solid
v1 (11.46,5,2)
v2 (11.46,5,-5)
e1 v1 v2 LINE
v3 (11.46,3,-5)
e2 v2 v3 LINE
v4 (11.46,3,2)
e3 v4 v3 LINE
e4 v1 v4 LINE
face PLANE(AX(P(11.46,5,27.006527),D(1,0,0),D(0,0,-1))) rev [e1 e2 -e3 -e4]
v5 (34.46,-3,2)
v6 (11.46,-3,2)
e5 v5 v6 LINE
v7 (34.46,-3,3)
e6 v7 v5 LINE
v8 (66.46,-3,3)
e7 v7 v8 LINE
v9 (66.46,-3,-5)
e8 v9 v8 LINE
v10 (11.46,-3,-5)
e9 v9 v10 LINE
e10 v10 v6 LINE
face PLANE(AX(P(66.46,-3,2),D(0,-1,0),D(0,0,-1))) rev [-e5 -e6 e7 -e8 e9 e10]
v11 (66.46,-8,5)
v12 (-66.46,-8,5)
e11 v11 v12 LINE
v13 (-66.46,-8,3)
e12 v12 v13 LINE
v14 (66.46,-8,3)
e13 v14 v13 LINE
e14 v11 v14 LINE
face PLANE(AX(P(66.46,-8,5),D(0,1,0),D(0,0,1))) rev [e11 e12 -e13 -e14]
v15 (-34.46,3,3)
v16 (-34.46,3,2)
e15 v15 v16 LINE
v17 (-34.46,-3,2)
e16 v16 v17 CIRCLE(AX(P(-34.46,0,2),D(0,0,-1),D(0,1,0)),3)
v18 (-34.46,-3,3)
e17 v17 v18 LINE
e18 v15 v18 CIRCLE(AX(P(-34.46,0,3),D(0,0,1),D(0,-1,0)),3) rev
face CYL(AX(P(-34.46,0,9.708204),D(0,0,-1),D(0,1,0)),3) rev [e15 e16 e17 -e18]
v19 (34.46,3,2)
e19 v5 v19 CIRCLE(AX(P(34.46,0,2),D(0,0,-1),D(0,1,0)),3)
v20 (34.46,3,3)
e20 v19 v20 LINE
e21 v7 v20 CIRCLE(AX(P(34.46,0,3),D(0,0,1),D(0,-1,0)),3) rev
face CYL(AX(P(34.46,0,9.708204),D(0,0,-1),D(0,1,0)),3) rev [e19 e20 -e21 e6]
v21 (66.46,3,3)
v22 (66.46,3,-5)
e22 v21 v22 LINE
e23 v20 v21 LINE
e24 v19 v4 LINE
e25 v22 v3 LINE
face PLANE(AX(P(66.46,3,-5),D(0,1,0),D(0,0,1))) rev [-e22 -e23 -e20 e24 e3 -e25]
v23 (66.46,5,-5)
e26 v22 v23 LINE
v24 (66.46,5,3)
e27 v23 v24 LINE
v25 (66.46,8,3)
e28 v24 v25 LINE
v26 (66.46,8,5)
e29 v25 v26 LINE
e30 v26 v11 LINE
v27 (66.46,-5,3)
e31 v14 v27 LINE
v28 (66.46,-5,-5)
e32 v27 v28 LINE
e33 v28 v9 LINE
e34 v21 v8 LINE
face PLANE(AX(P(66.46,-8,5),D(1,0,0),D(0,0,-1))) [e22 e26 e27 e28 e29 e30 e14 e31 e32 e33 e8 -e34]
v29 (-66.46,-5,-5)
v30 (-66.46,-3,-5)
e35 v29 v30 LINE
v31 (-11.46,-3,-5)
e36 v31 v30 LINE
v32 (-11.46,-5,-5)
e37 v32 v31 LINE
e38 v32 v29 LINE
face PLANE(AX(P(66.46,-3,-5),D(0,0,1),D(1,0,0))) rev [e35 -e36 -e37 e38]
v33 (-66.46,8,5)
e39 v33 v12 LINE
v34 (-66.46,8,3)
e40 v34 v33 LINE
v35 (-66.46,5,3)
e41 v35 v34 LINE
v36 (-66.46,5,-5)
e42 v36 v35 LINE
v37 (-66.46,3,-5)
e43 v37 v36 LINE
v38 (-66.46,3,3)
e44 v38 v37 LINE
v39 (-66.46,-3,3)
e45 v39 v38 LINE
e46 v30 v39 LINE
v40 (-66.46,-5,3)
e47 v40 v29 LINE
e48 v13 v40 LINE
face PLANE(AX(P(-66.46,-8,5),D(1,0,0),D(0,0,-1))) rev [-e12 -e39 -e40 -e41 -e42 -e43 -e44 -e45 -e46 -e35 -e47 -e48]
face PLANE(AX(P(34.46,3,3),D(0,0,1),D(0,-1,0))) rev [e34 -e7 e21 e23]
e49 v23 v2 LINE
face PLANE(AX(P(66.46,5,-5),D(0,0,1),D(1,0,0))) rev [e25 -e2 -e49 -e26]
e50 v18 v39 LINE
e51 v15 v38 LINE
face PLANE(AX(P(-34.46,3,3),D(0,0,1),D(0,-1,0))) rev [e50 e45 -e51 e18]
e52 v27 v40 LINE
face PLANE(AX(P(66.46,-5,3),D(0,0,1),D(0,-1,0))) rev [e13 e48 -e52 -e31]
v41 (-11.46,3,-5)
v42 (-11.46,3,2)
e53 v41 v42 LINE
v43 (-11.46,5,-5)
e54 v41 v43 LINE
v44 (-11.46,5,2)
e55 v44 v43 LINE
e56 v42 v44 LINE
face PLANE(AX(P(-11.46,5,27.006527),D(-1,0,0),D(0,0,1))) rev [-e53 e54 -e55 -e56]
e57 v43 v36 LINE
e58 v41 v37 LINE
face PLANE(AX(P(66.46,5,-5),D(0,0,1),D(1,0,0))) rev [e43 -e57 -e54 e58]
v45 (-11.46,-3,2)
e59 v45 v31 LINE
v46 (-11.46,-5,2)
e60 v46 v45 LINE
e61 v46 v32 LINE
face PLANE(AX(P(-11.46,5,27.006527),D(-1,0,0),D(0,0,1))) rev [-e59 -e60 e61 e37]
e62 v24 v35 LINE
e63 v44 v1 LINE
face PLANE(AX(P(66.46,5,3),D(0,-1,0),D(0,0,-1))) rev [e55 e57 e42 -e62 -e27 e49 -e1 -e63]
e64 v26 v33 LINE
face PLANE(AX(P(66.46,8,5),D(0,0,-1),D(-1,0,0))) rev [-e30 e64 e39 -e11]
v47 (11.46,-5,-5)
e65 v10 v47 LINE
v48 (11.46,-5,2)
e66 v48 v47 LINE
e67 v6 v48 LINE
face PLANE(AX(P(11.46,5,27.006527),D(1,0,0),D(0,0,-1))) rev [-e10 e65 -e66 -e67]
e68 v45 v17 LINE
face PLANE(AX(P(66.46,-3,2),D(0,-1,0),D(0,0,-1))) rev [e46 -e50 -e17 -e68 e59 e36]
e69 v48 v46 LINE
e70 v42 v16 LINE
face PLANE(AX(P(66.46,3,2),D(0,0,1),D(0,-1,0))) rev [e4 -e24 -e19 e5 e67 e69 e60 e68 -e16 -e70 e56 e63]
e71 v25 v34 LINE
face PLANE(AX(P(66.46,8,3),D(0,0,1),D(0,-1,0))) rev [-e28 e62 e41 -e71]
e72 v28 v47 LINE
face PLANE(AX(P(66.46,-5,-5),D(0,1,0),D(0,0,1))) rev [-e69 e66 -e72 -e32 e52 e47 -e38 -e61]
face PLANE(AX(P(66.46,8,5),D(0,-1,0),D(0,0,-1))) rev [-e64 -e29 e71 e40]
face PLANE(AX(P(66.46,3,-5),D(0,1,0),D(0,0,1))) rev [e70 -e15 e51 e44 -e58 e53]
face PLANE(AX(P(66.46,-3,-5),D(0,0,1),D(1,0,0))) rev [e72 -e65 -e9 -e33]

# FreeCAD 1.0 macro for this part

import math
import FreeCAD as App
import Part
import Sketcher
from FreeCAD import Vector
Q = App.Units.Quantity

doc = App.newDocument("Part")
body = doc.addObject("PartDesign::Body", "Body")

sketch1 = body.newObject("Sketcher::SketchObject", "Sketch")
sketch1.AttachmentSupport = (doc.getObject("YZ_Plane"), [""])
sketch1.MapMode = "FlatFace"
sketch1.addGeometry([
    Part.LineSegment(Vector(5, 3, 0), Vector(8, 3, 0)),
    Part.LineSegment(Vector(8, 3, 0), Vector(8, 5, 0)),
    Part.LineSegment(Vector(8, 5, 0), Vector(-8, 5, 0)),
    Part.LineSegment(Vector(-8, 5, 0), Vector(-8, 3, 0)),
    Part.LineSegment(Vector(-8, 3, 0), Vector(-5, 3, 0)),
    Part.LineSegment(Vector(-5, 3, 0), Vector(-5, -5, 0)),
    Part.LineSegment(Vector(-5, -5, 0), Vector(-3, -5, 0)),
    Part.LineSegment(Vector(-3, -5, 0), Vector(-3, 2, 0)),
    Part.LineSegment(Vector(-3, 2, 0), Vector(3, 2, 0)),
    Part.LineSegment(Vector(3, 2, 0), Vector(3, -5, 0)),
    Part.LineSegment(Vector(3, -5, 0), Vector(5, -5, 0)),
    Part.LineSegment(Vector(5, -5, 0), Vector(5, 3, 0)),
], False)
sketch1.addConstraint([
    Sketcher.Constraint("Coincident", 0, 2, 1, 1),
    Sketcher.Constraint("Coincident", 1, 2, 2, 1),
    Sketcher.Constraint("Coincident", 2, 2, 3, 1),
    Sketcher.Constraint("Coincident", 3, 2, 4, 1),
    Sketcher.Constraint("Coincident", 4, 2, 5, 1),
    Sketcher.Constraint("Coincident", 5, 2, 6, 1),
    Sketcher.Constraint("Coincident", 6, 2, 7, 1),
    Sketcher.Constraint("Coincident", 7, 2, 8, 1),
    Sketcher.Constraint("Coincident", 8, 2, 9, 1),
    Sketcher.Constraint("Coincident", 9, 2, 10, 1),
    Sketcher.Constraint("Coincident", 10, 2, 11, 1),
    Sketcher.Constraint("Coincident", 11, 2, 0, 1),
    Sketcher.Constraint("Horizontal", 0),
    Sketcher.Constraint("Vertical", 1),
    Sketcher.Constraint("Horizontal", 2),
    Sketcher.Constraint("Vertical", 3),
    Sketcher.Constraint("Horizontal", 4),
    Sketcher.Constraint("Vertical", 5),
    Sketcher.Constraint("Horizontal", 6),
    Sketcher.Constraint("Vertical", 7),
    Sketcher.Constraint("Horizontal", 8),
    Sketcher.Constraint("Vertical", 9),
    Sketcher.Constraint("Horizontal", 10),
    Sketcher.Constraint("Vertical", 11),
    Sketcher.Constraint("Symmetric", 0, 2, 3, 2, -2),
    Sketcher.Constraint("Symmetric", 6, 2, 9, 2, -2),
    Sketcher.Constraint("Equal", 0, 4),
    Sketcher.Constraint("Equal", 10, 1),
    Sketcher.Constraint("DistanceX", 0, 1, 0, 2, Q("3 mm")),
    Sketcher.Constraint("DistanceX", 2, 2, 2, 1, Q("16 mm")),
    Sketcher.Constraint("DistanceX", 6, 1, 6, 2, Q("2 mm")),
    Sketcher.Constraint("DistanceY", 5, 2, 5, 1, Q("8 mm")),
    Sketcher.Constraint("DistanceY", 7, 1, 7, 2, Q("7 mm")),
    Sketcher.Constraint("DistanceY", -1, 1, 0, 2, Q("3 mm")),
])
pad1 = body.newObject("PartDesign::Pad", "Pad")
pad1.Profile = sketch1
pad1.Length = 132.92
pad1.Midplane = True

sketch2 = body.newObject("Sketcher::SketchObject", "Sketch001")
sketch2.AttachmentSupport = (doc.getObject("YZ_Plane"), [""])
sketch2.MapMode = "FlatFace"
sketch2.AttachmentOffset = App.Placement(Vector(0, 0, -66.46), App.Rotation())
sketch2.addGeometry([
    Part.LineSegment(Vector(3, 2, 0), Vector(-3, 2, 0)),
    Part.LineSegment(Vector(-3, 2, 0), Vector(-3, 3, 0)),
    Part.LineSegment(Vector(-3, 3, 0), Vector(3, 3, 0)),
    Part.LineSegment(Vector(3, 3, 0), Vector(3, 2, 0)),
], False)
sketch2.addConstraint([
    Sketcher.Constraint("Coincident", 0, 2, 1, 1),
    Sketcher.Constraint("Coincident", 1, 2, 2, 1),
    Sketcher.Constraint("Coincident", 2, 2, 3, 1),
    Sketcher.Constraint("Coincident", 3, 2, 0, 1),
    Sketcher.Constraint("Horizontal", 0),
    Sketcher.Constraint("Vertical", 1),
    Sketcher.Constraint("Horizontal", 2),
    Sketcher.Constraint("Vertical", 3),
    Sketcher.Constraint("DistanceX", 0, 2, 0, 1, Q("6 mm")),
    Sketcher.Constraint("DistanceY", 1, 1, 1, 2, Q("1 mm")),
    Sketcher.Constraint("DistanceX", 0, 2, -1, 1, Q("3 mm")),
    Sketcher.Constraint("DistanceY", -1, 1, 0, 2, Q("2 mm")),
])
pocket1 = body.newObject("PartDesign::Pocket", "Pocket")
pocket1.Profile = sketch2
pocket1.Length = 32
pocket1.Reversed = True

sketch3 = body.newObject("Sketcher::SketchObject", "Sketch002")
sketch3.AttachmentSupport = (doc.getObject("YZ_Plane"), [""])
sketch3.MapMode = "FlatFace"
sketch3.AttachmentOffset = App.Placement(Vector(0, 0, 66.46), App.Rotation())
sketch3.addGeometry([
    Part.LineSegment(Vector(3, 3, 0), Vector(-3, 3, 0)),
    Part.LineSegment(Vector(-3, 3, 0), Vector(-3, 2, 0)),
    Part.LineSegment(Vector(-3, 2, 0), Vector(3, 2, 0)),
    Part.LineSegment(Vector(3, 2, 0), Vector(3, 3, 0)),
], False)
sketch3.addConstraint([
    Sketcher.Constraint("Coincident", 0, 2, 1, 1),
    Sketcher.Constraint("Coincident", 1, 2, 2, 1),
    Sketcher.Constraint("Coincident", 2, 2, 3, 1),
    Sketcher.Constraint("Coincident", 3, 2, 0, 1),
    Sketcher.Constraint("Horizontal", 0),
    Sketcher.Constraint("Vertical", 1),
    Sketcher.Constraint("Horizontal", 2),
    Sketcher.Constraint("Vertical", 3),
    Sketcher.Constraint("DistanceX", 0, 2, 0, 1, Q("6 mm")),
    Sketcher.Constraint("DistanceY", 1, 2, 1, 1, Q("1 mm")),
    Sketcher.Constraint("DistanceX", 0, 2, -1, 1, Q("3 mm")),
    Sketcher.Constraint("DistanceY", -1, 1, 0, 2, Q("3 mm")),
])
pocket2 = body.newObject("PartDesign::Pocket", "Pocket001")
pocket2.Profile = sketch3
pocket2.Length = 32

sketch4 = body.newObject("Sketcher::SketchObject", "Sketch003")
sketch4.AttachmentSupport = (doc.getObject("XY_Plane"), [""])
sketch4.MapMode = "FlatFace"
sketch4.AttachmentOffset = App.Placement(Vector(0, 0, 2), App.Rotation())
sketch4.addGeometry([
    Part.LineSegment(Vector(34.5, 3, 0), Vector(34.5, -3, 0)),
    Part.ArcOfCircle(Part.Circle(Vector(34.5, 0, 0), Vector(0, 0, 1), 3), math.radians(90), math.radians(270)),
    Part.LineSegment(Vector(-34.5, -3, 0), Vector(-34.5, 3, 0)),
    Part.ArcOfCircle(Part.Circle(Vector(-34.5, 0, 0), Vector(0, 0, 1), 3), math.radians(-90), math.radians(90)),
], False)
sketch4.addConstraint([
    Sketcher.Constraint("Coincident", 0, 1, 1, 1),
    Sketcher.Constraint("Coincident", 1, 2, 0, 2),
    Sketcher.Constraint("Coincident", 2, 1, 3, 1),
    Sketcher.Constraint("Coincident", 3, 2, 2, 2),
    Sketcher.Constraint("Vertical", 0),
    Sketcher.Constraint("Vertical", 2),
    Sketcher.Constraint("Equal", 1, 3),
    Sketcher.Constraint("Symmetric", 1, 3, 3, 3, -1, 1),
    Sketcher.Constraint("Symmetric", 1, 2, 2, 1, -2),
    Sketcher.Constraint("Vertical", 1, 3, 0, 1),
    Sketcher.Constraint("Radius", 1, Q("3 mm")),
    Sketcher.Constraint("DistanceX", -1, 1, 1, 3, Q("34.46 mm")),
])
pocket3 = body.newObject("PartDesign::Pocket", "Pocket002")
pocket3.Profile = sketch4
pocket3.Length = 1
pocket3.Reversed = True

sketch5 = body.newObject("Sketcher::SketchObject", "Sketch004")
sketch5.AttachmentSupport = (doc.getObject("XY_Plane"), [""])
sketch5.MapMode = "FlatFace"
sketch5.AttachmentOffset = App.Placement(Vector(0, 0, -5), App.Rotation())
sketch5.addGeometry([
    Part.LineSegment(Vector(11, 5, 0), Vector(11, -5, 0)),
    Part.LineSegment(Vector(11, -5, 0), Vector(-11, -5, 0)),
    Part.LineSegment(Vector(-11, -5, 0), Vector(-11, 5, 0)),
    Part.LineSegment(Vector(-11, 5, 0), Vector(11, 5, 0)),
], False)
sketch5.addConstraint([
    Sketcher.Constraint("Coincident", 0, 2, 1, 1),
    Sketcher.Constraint("Coincident", 1, 2, 2, 1),
    Sketcher.Constraint("Coincident", 2, 2, 3, 1),
    Sketcher.Constraint("Coincident", 3, 2, 0, 1),
    Sketcher.Constraint("Vertical", 0),
    Sketcher.Constraint("Horizontal", 1),
    Sketcher.Constraint("Vertical", 2),
    Sketcher.Constraint("Horizontal", 3),
    Sketcher.Constraint("Symmetric", 0, 2, 2, 2, -1, 1),
    Sketcher.Constraint("DistanceY", 0, 2, 0, 1, Q("10 mm")),
    Sketcher.Constraint("DistanceX", 1, 2, 1, 1, Q("22.92 mm")),
])
pocket4 = body.newObject("PartDesign::Pocket", "Pocket003")
pocket4.Profile = sketch5
pocket4.Length = 7
pocket4.Reversed = True

doc.recompute()
